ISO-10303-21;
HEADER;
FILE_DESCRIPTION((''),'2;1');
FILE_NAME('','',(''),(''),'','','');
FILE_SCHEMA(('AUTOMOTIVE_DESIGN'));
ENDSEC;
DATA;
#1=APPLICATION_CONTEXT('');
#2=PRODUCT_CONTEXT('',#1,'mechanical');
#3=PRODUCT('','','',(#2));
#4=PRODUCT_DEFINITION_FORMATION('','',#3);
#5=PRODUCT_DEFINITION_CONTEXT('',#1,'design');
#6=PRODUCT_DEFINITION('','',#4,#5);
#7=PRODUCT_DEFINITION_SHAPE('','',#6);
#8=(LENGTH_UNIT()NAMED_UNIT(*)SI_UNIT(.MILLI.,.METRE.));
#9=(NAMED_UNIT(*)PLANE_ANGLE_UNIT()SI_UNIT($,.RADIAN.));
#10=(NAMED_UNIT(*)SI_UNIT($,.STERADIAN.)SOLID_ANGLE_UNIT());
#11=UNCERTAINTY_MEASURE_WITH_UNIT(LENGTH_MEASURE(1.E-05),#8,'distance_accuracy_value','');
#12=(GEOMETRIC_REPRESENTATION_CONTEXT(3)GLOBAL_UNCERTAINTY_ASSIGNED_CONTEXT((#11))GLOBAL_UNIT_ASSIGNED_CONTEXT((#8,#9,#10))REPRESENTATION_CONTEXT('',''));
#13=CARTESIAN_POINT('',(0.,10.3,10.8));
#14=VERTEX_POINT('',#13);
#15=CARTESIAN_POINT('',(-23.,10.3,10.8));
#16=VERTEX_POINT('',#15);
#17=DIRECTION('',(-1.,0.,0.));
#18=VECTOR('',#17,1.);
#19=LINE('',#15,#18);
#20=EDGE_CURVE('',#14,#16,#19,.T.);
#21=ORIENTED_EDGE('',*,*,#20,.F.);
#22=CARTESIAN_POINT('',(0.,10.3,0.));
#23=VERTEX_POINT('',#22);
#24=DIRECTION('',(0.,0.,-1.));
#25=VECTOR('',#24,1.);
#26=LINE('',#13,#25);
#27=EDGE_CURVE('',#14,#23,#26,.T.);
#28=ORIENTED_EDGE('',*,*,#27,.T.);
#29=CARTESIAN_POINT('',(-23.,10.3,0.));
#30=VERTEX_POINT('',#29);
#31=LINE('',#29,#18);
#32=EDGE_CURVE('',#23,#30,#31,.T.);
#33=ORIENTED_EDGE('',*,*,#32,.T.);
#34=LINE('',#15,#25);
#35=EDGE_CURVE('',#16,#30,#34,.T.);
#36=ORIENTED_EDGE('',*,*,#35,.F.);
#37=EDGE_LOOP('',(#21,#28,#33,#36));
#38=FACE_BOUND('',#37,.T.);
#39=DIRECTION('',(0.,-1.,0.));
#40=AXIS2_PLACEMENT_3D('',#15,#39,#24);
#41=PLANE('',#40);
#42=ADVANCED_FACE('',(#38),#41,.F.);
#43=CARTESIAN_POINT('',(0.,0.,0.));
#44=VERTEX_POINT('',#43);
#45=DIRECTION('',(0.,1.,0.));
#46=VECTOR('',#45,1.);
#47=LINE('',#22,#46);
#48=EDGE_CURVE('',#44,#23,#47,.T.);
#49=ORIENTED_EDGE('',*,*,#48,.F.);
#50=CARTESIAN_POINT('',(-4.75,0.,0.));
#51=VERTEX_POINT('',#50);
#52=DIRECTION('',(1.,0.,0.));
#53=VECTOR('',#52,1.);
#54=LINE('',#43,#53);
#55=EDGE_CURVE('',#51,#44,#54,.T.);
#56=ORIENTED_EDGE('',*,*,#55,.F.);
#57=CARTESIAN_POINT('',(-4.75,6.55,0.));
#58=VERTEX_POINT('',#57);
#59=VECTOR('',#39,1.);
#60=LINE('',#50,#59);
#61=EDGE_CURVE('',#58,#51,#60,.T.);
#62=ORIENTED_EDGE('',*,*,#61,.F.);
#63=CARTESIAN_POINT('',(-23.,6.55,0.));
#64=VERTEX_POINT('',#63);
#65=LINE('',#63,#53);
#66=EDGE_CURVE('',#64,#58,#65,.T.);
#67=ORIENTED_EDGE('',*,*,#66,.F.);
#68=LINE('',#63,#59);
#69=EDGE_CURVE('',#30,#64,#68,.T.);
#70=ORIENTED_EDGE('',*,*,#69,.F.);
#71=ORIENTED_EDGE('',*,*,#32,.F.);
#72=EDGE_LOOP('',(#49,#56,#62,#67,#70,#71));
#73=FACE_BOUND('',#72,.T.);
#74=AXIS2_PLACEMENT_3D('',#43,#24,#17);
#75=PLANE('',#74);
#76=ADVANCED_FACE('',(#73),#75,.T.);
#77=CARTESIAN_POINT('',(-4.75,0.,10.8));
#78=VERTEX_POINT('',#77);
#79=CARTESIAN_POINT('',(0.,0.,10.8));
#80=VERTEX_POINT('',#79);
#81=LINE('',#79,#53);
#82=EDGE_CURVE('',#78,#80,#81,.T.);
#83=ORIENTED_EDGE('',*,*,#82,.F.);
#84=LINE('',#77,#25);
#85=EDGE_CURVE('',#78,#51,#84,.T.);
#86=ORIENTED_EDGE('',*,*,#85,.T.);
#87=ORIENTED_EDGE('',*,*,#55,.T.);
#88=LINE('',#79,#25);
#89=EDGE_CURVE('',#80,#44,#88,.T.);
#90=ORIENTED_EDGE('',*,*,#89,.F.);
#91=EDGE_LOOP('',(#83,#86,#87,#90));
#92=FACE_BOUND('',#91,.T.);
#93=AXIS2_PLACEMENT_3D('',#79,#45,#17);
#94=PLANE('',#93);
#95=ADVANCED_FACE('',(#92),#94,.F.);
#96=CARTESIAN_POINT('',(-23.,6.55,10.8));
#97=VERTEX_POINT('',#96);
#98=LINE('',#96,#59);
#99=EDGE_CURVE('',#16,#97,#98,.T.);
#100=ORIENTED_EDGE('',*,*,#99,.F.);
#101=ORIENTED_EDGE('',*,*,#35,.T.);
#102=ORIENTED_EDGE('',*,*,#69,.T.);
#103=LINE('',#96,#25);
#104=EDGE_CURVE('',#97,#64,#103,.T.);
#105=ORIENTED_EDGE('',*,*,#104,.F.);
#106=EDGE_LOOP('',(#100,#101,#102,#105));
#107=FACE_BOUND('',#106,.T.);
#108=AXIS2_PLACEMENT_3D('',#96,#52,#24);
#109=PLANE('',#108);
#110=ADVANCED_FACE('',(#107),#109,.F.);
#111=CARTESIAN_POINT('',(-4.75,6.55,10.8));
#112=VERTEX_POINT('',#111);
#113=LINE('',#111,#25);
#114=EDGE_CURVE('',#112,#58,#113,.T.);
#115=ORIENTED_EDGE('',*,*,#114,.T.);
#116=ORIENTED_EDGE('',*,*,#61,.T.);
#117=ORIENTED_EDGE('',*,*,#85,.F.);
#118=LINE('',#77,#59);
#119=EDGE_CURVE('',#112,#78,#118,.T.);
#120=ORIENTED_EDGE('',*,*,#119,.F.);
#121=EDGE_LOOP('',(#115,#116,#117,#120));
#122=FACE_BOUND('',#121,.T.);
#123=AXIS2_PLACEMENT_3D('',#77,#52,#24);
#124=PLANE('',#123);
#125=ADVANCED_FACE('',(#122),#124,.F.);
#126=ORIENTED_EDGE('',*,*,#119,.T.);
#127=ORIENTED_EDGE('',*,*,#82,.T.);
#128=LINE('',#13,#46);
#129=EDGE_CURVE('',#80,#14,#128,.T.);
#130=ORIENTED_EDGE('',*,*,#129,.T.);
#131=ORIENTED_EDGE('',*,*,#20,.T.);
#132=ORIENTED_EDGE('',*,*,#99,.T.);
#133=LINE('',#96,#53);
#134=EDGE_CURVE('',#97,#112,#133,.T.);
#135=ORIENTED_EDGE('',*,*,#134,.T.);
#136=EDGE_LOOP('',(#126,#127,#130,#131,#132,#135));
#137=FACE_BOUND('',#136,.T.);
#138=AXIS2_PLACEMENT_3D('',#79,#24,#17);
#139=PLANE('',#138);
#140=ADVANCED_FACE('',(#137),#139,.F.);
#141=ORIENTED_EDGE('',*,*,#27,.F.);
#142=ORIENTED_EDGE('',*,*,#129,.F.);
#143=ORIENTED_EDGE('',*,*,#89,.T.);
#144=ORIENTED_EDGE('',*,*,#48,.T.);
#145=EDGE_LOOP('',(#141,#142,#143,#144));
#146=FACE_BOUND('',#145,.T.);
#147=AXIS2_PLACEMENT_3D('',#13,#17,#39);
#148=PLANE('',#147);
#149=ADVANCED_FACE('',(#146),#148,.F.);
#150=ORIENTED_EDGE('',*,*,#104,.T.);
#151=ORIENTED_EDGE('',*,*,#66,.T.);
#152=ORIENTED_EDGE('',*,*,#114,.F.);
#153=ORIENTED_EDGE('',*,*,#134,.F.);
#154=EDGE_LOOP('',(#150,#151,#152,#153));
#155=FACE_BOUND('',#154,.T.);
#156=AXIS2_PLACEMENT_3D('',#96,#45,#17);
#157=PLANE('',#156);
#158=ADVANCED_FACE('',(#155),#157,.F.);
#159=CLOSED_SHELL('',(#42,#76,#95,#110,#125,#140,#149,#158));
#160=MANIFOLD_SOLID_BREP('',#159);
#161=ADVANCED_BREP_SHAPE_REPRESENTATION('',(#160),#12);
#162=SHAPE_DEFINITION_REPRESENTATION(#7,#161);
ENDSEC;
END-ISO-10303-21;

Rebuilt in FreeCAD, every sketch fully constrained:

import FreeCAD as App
import Part
import Sketcher
from FreeCAD import Vector


def add_polygon(sketch, points):
    """Adds a closed chain of lines whose ends are joined by coincident constraints."""
    first, n = sketch.GeometryCount, len(points)
    for a, b in zip(points, points[1:] + points[:1]):
        sketch.addGeometry(Part.LineSegment(App.Vector(*a, 0), App.Vector(*b, 0)), False)
    for i in range(n):
        sketch.addConstraint(Sketcher.Constraint("Coincident", first + i, 2, first + (i + 1) % n, 1))

doc = App.newDocument("Part")
body = doc.addObject("PartDesign::Body", "Body")

sketch1 = body.newObject("Sketcher::SketchObject", "Sketch")
sketch1.AttachmentSupport = (doc.getObject("XY_Plane"), [""])
sketch1.MapMode = "FlatFace"
add_polygon(sketch1, [(-23, 6.55), (-4.75, 6.55), (-4.75, 0), (0, 0), (0, 10.3), (-23, 10.3)])
sketch1.addConstraint([
    Sketcher.Constraint("Horizontal", 0),
    Sketcher.Constraint("Vertical", 1),
    Sketcher.Constraint("Horizontal", 2),
    Sketcher.Constraint("Vertical", 3),
    Sketcher.Constraint("Horizontal", 4),
    Sketcher.Constraint("Vertical", 5),
    Sketcher.Constraint("Coincident", 2, 2, -1, 1),
    Sketcher.Constraint("DistanceX", 4, 2, 4, 1, 23.0),
    Sketcher.Constraint("DistanceY", 3, 1, 3, 2, 10.3),
    Sketcher.Constraint("DistanceX", 0, 1, 0, 2, 18.25),
    Sketcher.Constraint("DistanceY", 1, 2, 1, 1, 6.55),
])
pad1 = body.newObject("PartDesign::Pad", "Pad")
pad1.Profile = sketch1
pad1.Length = 10.8

doc.recompute()
